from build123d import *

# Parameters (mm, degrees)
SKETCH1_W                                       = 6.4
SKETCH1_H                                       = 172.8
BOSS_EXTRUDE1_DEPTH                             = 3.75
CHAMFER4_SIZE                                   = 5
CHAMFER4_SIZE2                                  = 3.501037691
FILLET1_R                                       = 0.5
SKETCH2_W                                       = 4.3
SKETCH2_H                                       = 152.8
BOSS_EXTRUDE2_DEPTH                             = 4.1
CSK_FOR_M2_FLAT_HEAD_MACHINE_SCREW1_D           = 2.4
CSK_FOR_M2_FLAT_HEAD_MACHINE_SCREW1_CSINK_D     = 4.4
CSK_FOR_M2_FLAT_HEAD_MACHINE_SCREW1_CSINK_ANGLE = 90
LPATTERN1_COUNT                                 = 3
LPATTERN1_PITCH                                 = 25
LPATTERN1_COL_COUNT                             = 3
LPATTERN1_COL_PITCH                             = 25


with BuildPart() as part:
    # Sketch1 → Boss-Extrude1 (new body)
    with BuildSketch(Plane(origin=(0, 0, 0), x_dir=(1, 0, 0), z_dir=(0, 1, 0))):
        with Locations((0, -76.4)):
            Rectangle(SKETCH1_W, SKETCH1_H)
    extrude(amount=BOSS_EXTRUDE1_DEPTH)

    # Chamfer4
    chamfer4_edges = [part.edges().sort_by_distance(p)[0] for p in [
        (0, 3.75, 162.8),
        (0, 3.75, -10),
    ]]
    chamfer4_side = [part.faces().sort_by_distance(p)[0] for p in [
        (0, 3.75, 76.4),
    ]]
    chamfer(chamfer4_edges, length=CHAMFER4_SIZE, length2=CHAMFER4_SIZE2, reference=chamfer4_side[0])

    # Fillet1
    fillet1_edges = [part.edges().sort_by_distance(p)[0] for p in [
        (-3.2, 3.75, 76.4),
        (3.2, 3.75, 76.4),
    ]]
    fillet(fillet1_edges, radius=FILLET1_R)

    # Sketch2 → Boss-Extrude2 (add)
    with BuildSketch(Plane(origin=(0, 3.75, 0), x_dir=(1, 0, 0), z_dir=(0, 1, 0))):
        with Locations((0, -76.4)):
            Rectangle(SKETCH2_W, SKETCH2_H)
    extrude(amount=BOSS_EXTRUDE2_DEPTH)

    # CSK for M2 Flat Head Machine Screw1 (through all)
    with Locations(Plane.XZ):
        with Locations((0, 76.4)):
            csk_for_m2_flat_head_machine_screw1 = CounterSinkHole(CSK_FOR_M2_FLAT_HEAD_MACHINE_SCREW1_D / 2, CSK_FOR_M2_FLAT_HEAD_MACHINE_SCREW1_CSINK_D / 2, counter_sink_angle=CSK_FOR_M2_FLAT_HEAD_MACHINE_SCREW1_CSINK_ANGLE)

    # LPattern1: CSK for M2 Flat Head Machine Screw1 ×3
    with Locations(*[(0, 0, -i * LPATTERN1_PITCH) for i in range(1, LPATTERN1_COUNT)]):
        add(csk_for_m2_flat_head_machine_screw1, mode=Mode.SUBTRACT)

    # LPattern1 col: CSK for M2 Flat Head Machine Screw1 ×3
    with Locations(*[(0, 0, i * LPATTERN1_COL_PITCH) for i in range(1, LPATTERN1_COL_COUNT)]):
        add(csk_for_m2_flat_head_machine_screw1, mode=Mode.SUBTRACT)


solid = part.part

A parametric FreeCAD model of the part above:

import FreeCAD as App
import Part
import Sketcher

V = App.Vector
Q = App.Units.Quantity


def edges_at(feature, points):
    """Names of the edges that pass closest to the given points."""
    edges = feature.Shape.Edges
    near = lambda p: min(range(len(edges)), key=lambda i: edges[i].distToShape(Part.Vertex(*p))[0])
    return sorted({f"Edge{near(p) + 1}" for p in points})

doc = App.newDocument("Part")
params = doc.addObject("Spreadsheet::Sheet", "Params")
for row, (alias, value) in enumerate([
    ("sketch1_width", "6.4 mm"),
    ("sketch1_height", "172.8 mm"),
    ("pad1_length", "3.75 mm"),
    ("chamfer_size", "5 mm"),
    ("chamfer_size2", "3.501038 mm"),
    ("fillet_radius", "0.5 mm"),
    ("sketch2_width", "4.3 mm"),
    ("sketch2_height", "152.8 mm"),
    ("pad2_length", "4.1 mm"),
    ("sketch3_diameter", "2.4 mm"),
    ("hole_diameter", "2.4 mm"),
    ("hole_csink_diameter", "4.4 mm"),
    ("linearpattern_pitch", "25 mm"),
    ("linearpattern2_pitch", "25 mm"),
], start=1):
    params.set(f"A{row}", alias)
    params.set(f"B{row}", "=" + value)
    params.setAlias(f"B{row}", alias)

body = doc.addObject("PartDesign::Body", "Body")

sketch1 = body.newObject("Sketcher::SketchObject", "Sketch")
sketch1.AttachmentSupport = (doc.getObject("XZ_Plane"), [""])
sketch1.MapMode = "FlatFace"
sketch1.addGeometry([
    Part.LineSegment(V(-3, -10, 0), V(-3, 163, 0)),
    Part.LineSegment(V(-3, 163, 0), V(3, 163, 0)),
    Part.LineSegment(V(3, 163, 0), V(3, -10, 0)),
    Part.LineSegment(V(3, -10, 0), V(-3, -10, 0)),
], False)
sketch1.addConstraint([
    Sketcher.Constraint("Coincident", 0, 2, 1, 1),
    Sketcher.Constraint("Coincident", 1, 2, 2, 1),
    Sketcher.Constraint("Coincident", 2, 2, 3, 1),
    Sketcher.Constraint("Coincident", 3, 2, 0, 1),
    Sketcher.Constraint("Vertical", 0),
    Sketcher.Constraint("Horizontal", 1),
    Sketcher.Constraint("Vertical", 2),
    Sketcher.Constraint("Horizontal", 3),
    Sketcher.Constraint("DistanceX", 1, 1, 1, 2, Q("6.4 mm")),
    Sketcher.Constraint("DistanceY", 0, 1, 0, 2, Q("172.8 mm")),
    Sketcher.Constraint("DistanceY", 2, 2, -1, 1, Q("10 mm")),
    Sketcher.Constraint("DistanceX", 0, 2, -1, 1, Q("3.2 mm")),
])
sketch1.setExpression("Constraints[8]", "Params.sketch1_width")
sketch1.setExpression("Constraints[9]", "Params.sketch1_height")
pad1 = body.newObject("PartDesign::Pad", "Pad")
pad1.Profile = sketch1
pad1.setExpression("Length", "Params.pad1_length")
pad1.Reversed = True
doc.recompute()

chamfer = body.newObject("PartDesign::Chamfer", "Chamfer")
chamfer.Base = (pad1, edges_at(pad1, [(0, 3.75, 162.8), (0, 3.75, -10)]))
chamfer.ChamferType = "Two distances"
chamfer.setExpression("Size", "Params.chamfer_size")
chamfer.setExpression("Size2", "Params.chamfer_size2")
chamfer.FlipDirection = True
doc.recompute()

fillet = body.newObject("PartDesign::Fillet", "Fillet")
fillet.Base = (chamfer, edges_at(chamfer, [(-3.2, 3.75, 76.4), (3.2, 3.75, 76.4)]))
fillet.setExpression("Radius", "Params.fillet_radius")

sketch2 = body.newObject("Sketcher::SketchObject", "Sketch001")
sketch2.AttachmentSupport = (doc.getObject("XZ_Plane"), [""])
sketch2.MapMode = "FlatFace"
sketch2.AttachmentOffset = App.Placement(V(0, 0, -3.75), App.Rotation())
sketch2.addGeometry([
    Part.LineSegment(V(-2.1, 0, 0), V(-2.1, 152.8, 0)),
    Part.LineSegment(V(-2.1, 152.8, 0), V(2.1, 152.8, 0)),
    Part.LineSegment(V(2.1, 152.8, 0), V(2.1, 0, 0)),
    Part.LineSegment(V(2.1, 0, 0), V(-2.1, 0, 0)),
], False)
sketch2.addConstraint([
    Sketcher.Constraint("Coincident", 0, 2, 1, 1),
    Sketcher.Constraint("Coincident", 1, 2, 2, 1),
    Sketcher.Constraint("Coincident", 2, 2, 3, 1),
    Sketcher.Constraint("Coincident", 3, 2, 0, 1),
    Sketcher.Constraint("Vertical", 0),
    Sketcher.Constraint("Horizontal", 1),
    Sketcher.Constraint("Vertical", 2),
    Sketcher.Constraint("Horizontal", 3),
    Sketcher.Constraint("Symmetric", 2, 2, 3, 2, -1, 1),
    Sketcher.Constraint("DistanceX", 1, 1, 1, 2, Q("4.3 mm")),
    Sketcher.Constraint("DistanceY", 0, 1, 0, 2, Q("152.8 mm")),
])
sketch2.setExpression("Constraints[9]", "Params.sketch2_width")
sketch2.setExpression("Constraints[10]", "Params.sketch2_height")
pad2 = body.newObject("PartDesign::Pad", "Pad001")
pad2.Profile = sketch2
pad2.setExpression("Length", "Params.pad2_length")
pad2.Reversed = True

sketch3 = body.newObject("Sketcher::SketchObject", "Sketch002")
sketch3.AttachmentSupport = (doc.getObject("XZ_Plane"), [""])
sketch3.MapMode = "FlatFace"
sketch3.addGeometry(Part.Circle(V(0, 76.4, 0), V(0, 0, 1), 1.2), False)
sketch3.addConstraint([
    Sketcher.Constraint("PointOnObject", 0, 3, -2),
    Sketcher.Constraint("Diameter", 0, Q("2.4 mm")),
    Sketcher.Constraint("DistanceY", -1, 1, 0, 3, Q("76.4 mm")),
])
sketch3.setExpression("Constraints[1]", "Params.sketch3_diameter")
doc.recompute()
hole = body.newObject("PartDesign::Hole", "Hole")
hole.Profile = sketch3
hole.ThreadType = "None"
hole.setExpression("Diameter", "Params.hole_diameter")
hole.DepthType = "ThroughAll"
hole.HoleCutType = "Countersink"
hole.setExpression("HoleCutDiameter", "Params.hole_csink_diameter")
hole.HoleCutCountersinkAngle = 90
doc.recompute()

linearpattern = body.newObject("PartDesign::LinearPattern", "LinearPattern")
linearpattern.Originals = [hole]
linearpattern.Direction = (doc.getObject("Z_Axis"), [""])
linearpattern.Mode = "offset"
linearpattern.setExpression("Offset", "Params.linearpattern_pitch")
linearpattern.Occurrences = 3
linearpattern.Reversed = True
body.Tip = linearpattern
doc.recompute()

linearpattern2 = body.newObject("PartDesign::LinearPattern", "LinearPattern001")
linearpattern2.Originals = [hole]
linearpattern2.Direction = (doc.getObject("Z_Axis"), [""])
linearpattern2.Mode = "offset"
linearpattern2.setExpression("Offset", "Params.linearpattern2_pitch")
linearpattern2.Occurrences = 3
body.Tip = linearpattern2

doc.recompute()
